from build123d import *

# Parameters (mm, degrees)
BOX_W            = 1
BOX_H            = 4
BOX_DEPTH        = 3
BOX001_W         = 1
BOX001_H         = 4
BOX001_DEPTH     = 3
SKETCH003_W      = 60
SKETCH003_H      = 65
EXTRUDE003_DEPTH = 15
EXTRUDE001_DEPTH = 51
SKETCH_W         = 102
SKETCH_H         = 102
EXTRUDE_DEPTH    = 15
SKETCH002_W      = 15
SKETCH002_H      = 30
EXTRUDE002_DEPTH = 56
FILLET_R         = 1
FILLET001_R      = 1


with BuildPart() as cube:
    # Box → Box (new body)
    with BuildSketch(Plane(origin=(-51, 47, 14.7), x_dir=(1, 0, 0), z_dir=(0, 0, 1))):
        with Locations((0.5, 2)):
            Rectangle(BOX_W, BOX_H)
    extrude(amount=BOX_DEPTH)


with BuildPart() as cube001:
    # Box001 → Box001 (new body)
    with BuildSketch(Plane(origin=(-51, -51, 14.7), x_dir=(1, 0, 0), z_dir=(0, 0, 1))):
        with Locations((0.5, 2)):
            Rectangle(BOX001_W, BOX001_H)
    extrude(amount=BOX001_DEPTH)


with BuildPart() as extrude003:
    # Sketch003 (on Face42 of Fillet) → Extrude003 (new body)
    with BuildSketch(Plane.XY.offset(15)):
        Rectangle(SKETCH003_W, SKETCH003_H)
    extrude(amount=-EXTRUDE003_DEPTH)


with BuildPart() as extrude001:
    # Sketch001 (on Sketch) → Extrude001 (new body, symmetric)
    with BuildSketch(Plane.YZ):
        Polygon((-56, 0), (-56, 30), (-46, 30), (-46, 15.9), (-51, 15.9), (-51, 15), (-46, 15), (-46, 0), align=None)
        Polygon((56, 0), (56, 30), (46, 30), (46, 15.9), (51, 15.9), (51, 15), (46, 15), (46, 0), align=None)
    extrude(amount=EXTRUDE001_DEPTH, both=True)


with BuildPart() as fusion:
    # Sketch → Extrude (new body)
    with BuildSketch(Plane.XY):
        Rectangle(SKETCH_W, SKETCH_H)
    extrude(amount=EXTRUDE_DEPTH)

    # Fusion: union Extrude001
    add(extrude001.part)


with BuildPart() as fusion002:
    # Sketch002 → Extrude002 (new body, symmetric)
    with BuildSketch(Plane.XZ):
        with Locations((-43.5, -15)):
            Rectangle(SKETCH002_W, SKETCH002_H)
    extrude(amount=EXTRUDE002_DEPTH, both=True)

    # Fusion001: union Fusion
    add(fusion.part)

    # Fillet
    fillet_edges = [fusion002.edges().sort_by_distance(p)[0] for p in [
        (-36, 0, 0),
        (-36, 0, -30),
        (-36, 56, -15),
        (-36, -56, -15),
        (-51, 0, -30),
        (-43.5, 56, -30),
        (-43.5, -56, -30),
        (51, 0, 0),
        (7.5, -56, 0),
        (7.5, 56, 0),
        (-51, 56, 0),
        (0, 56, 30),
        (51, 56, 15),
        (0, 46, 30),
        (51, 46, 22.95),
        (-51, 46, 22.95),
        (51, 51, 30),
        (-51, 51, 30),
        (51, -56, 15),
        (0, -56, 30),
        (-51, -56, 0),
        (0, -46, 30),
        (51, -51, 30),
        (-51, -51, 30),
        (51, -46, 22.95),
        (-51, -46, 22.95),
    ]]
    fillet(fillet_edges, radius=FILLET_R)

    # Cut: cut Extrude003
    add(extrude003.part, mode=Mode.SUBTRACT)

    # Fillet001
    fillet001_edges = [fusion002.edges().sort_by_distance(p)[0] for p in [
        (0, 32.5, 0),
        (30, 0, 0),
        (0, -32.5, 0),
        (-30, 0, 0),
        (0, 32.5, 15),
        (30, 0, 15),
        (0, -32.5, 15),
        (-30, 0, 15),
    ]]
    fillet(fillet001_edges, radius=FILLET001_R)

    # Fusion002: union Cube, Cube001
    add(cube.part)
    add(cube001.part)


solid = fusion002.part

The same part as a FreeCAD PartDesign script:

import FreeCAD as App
import Part
import Sketcher


def edges_at(feature, points):
    """Names of the edges that pass closest to the given points."""
    edges = feature.Shape.Edges
    near = lambda p: min(range(len(edges)), key=lambda i: edges[i].distToShape(Part.Vertex(*p))[0])
    return sorted({f"Edge{near(p) + 1}" for p in points})

doc = App.newDocument("Part")
body = doc.addObject("PartDesign::Body", "Body")

sketch1 = body.newObject("Sketcher::SketchObject", "Sketch")
sketch1.AttachmentSupport = (doc.getObject("XY_Plane"), [""])
sketch1.MapMode = "FlatFace"
sketch1.AttachmentOffset = App.Placement(App.Vector(0, 0, 14.7), App.Rotation())
sketch1.addGeometry([
    Part.LineSegment(App.Vector(-51, 51, 0), App.Vector(-51, 47, 0)),
    Part.LineSegment(App.Vector(-51, 47, 0), App.Vector(-50, 47, 0)),
    Part.LineSegment(App.Vector(-50, 47, 0), App.Vector(-50, 51, 0)),
    Part.LineSegment(App.Vector(-50, 51, 0), App.Vector(-51, 51, 0)),
], False)
sketch1.addConstraint([
    Sketcher.Constraint("Coincident", 0, 2, 1, 1),
    Sketcher.Constraint("Coincident", 1, 2, 2, 1),
    Sketcher.Constraint("Coincident", 2, 2, 3, 1),
    Sketcher.Constraint("Coincident", 3, 2, 0, 1),
    Sketcher.Constraint("Vertical", 0),
    Sketcher.Constraint("Horizontal", 1),
    Sketcher.Constraint("Vertical", 2),
    Sketcher.Constraint("Horizontal", 3),
    Sketcher.Constraint("DistanceX", 1, 1, 1, 2, 1.0),
    Sketcher.Constraint("DistanceY", 0, 2, 0, 1, 4.0),
    Sketcher.Constraint("DistanceX", 0, 2, -1, 1, 51.0),
    Sketcher.Constraint("DistanceY", -1, 1, 0, 2, 47.0),
])
pad1 = body.newObject("PartDesign::Pad", "Pad")
pad1.Profile = sketch1
pad1.Length = 3
body2 = doc.addObject("PartDesign::Body", "Body001")

sketch2 = body2.newObject("Sketcher::SketchObject", "Sketch001")
sketch2.AttachmentSupport = (doc.getObject("XY_Plane001"), [""])
sketch2.MapMode = "FlatFace"
sketch2.AttachmentOffset = App.Placement(App.Vector(0, 0, 14.7), App.Rotation())
sketch2.addGeometry([
    Part.LineSegment(App.Vector(-51, -47, 0), App.Vector(-51, -51, 0)),
    Part.LineSegment(App.Vector(-51, -51, 0), App.Vector(-50, -51, 0)),
    Part.LineSegment(App.Vector(-50, -51, 0), App.Vector(-50, -47, 0)),
    Part.LineSegment(App.Vector(-50, -47, 0), App.Vector(-51, -47, 0)),
], False)
sketch2.addConstraint([
    Sketcher.Constraint("Coincident", 0, 2, 1, 1),
    Sketcher.Constraint("Coincident", 1, 2, 2, 1),
    Sketcher.Constraint("Coincident", 2, 2, 3, 1),
    Sketcher.Constraint("Coincident", 3, 2, 0, 1),
    Sketcher.Constraint("Vertical", 0),
    Sketcher.Constraint("Horizontal", 1),
    Sketcher.Constraint("Vertical", 2),
    Sketcher.Constraint("Horizontal", 3),
    Sketcher.Constraint("DistanceX", 1, 1, 1, 2, 1.0),
    Sketcher.Constraint("DistanceY", 0, 2, 0, 1, 4.0),
    Sketcher.Constraint("DistanceX", 0, 2, -1, 1, 51.0),
    Sketcher.Constraint("DistanceY", 0, 2, -1, 1, 51.0),
])
pad2 = body2.newObject("PartDesign::Pad", "Pad001")
pad2.Profile = sketch2
pad2.Length = 3
body3 = doc.addObject("PartDesign::Body", "Body002")

sketch3 = body3.newObject("Sketcher::SketchObject", "Sketch002")
sketch3.AttachmentSupport = (doc.getObject("XY_Plane002"), [""])
sketch3.MapMode = "FlatFace"
sketch3.AttachmentOffset = App.Placement(App.Vector(0, 0, 15), App.Rotation())
sketch3.addGeometry([
    Part.LineSegment(App.Vector(-30, 32, 0), App.Vector(-30, -32, 0)),
    Part.LineSegment(App.Vector(-30, -32, 0), App.Vector(30, -32, 0)),
    Part.LineSegment(App.Vector(30, -32, 0), App.Vector(30, 32, 0)),
    Part.LineSegment(App.Vector(30, 32, 0), App.Vector(-30, 32, 0)),
], False)
sketch3.addConstraint([
    Sketcher.Constraint("Coincident", 0, 2, 1, 1),
    Sketcher.Constraint("Coincident", 1, 2, 2, 1),
    Sketcher.Constraint("Coincident", 2, 2, 3, 1),
    Sketcher.Constraint("Coincident", 3, 2, 0, 1),
    Sketcher.Constraint("Vertical", 0),
    Sketcher.Constraint("Horizontal", 1),
    Sketcher.Constraint("Vertical", 2),
    Sketcher.Constraint("Horizontal", 3),
    Sketcher.Constraint("Symmetric", 0, 2, 2, 2, -1, 1),
    Sketcher.Constraint("DistanceX", 1, 1, 1, 2, 60.0),
    Sketcher.Constraint("DistanceY", 0, 2, 0, 1, 65.0),
])
pad3 = body3.newObject("PartDesign::Pad", "Pad002")
pad3.Profile = sketch3
pad3.Length = 15
pad3.Reversed = True
body4 = doc.addObject("PartDesign::Body", "Body003")
body4.AllowCompound = True

sketch4 = body4.newObject("Sketcher::SketchObject", "Sketch003")
sketch4.AttachmentSupport = (doc.getObject("YZ_Plane003"), [""])
sketch4.MapMode = "FlatFace"
sketch4.addGeometry([
    Part.LineSegment(App.Vector(-56, 30, 0), App.Vector(-56, 0, 0)),
    Part.LineSegment(App.Vector(-56, 0, 0), App.Vector(-46, 0, 0)),
    Part.LineSegment(App.Vector(-46, 0, 0), App.Vector(-46, 15, 0)),
    Part.LineSegment(App.Vector(-46, 15, 0), App.Vector(-51, 15, 0)),
    Part.LineSegment(App.Vector(-51, 15, 0), App.Vector(-51, 15.9, 0)),
    Part.LineSegment(App.Vector(-51, 15.9, 0), App.Vector(-46, 15.9, 0)),
    Part.LineSegment(App.Vector(-46, 15.9, 0), App.Vector(-46, 30, 0)),
    Part.LineSegment(App.Vector(-46, 30, 0), App.Vector(-56, 30, 0)),
    Part.LineSegment(App.Vector(56, 0, 0), App.Vector(56, 30, 0)),
    Part.LineSegment(App.Vector(56, 30, 0), App.Vector(46, 30, 0)),
    Part.LineSegment(App.Vector(46, 30, 0), App.Vector(46, 15.9, 0)),
    Part.LineSegment(App.Vector(46, 15.9, 0), App.Vector(51, 15.9, 0)),
    Part.LineSegment(App.Vector(51, 15.9, 0), App.Vector(51, 15, 0)),
    Part.LineSegment(App.Vector(51, 15, 0), App.Vector(46, 15, 0)),
    Part.LineSegment(App.Vector(46, 15, 0), App.Vector(46, 0, 0)),
    Part.LineSegment(App.Vector(46, 0, 0), App.Vector(56, 0, 0)),
], False)
sketch4.addConstraint([
    Sketcher.Constraint("Coincident", 0, 2, 1, 1),
    Sketcher.Constraint("Coincident", 1, 2, 2, 1),
    Sketcher.Constraint("Coincident", 2, 2, 3, 1),
    Sketcher.Constraint("Coincident", 3, 2, 4, 1),
    Sketcher.Constraint("Coincident", 4, 2, 5, 1),
    Sketcher.Constraint("Coincident", 5, 2, 6, 1),
    Sketcher.Constraint("Coincident", 6, 2, 7, 1),
    Sketcher.Constraint("Coincident", 7, 2, 0, 1),
    Sketcher.Constraint("Coincident", 8, 2, 9, 1),
    Sketcher.Constraint("Coincident", 9, 2, 10, 1),
    Sketcher.Constraint("Coincident", 10, 2, 11, 1),
    Sketcher.Constraint("Coincident", 11, 2, 12, 1),
    Sketcher.Constraint("Coincident", 12, 2, 13, 1),
    Sketcher.Constraint("Coincident", 13, 2, 14, 1),
    Sketcher.Constraint("Coincident", 14, 2, 15, 1),
    Sketcher.Constraint("Coincident", 15, 2, 8, 1),
    Sketcher.Constraint("Vertical", 0),
    Sketcher.Constraint("Horizontal", 1),
    Sketcher.Constraint("Vertical", 2),
    Sketcher.Constraint("Horizontal", 3),
    Sketcher.Constraint("Vertical", 4),
    Sketcher.Constraint("Horizontal", 5),
    Sketcher.Constraint("Vertical", 6),
    Sketcher.Constraint("Horizontal", 7),
    Sketcher.Constraint("Vertical", 8),
    Sketcher.Constraint("Horizontal", 9),
    Sketcher.Constraint("Vertical", 10),
    Sketcher.Constraint("Horizontal", 11),
    Sketcher.Constraint("Vertical", 12),
    Sketcher.Constraint("Horizontal", 13),
    Sketcher.Constraint("Vertical", 14),
    Sketcher.Constraint("Horizontal", 15),
    Sketcher.Constraint("Symmetric", 1, 2, 14, 2, -1, 1),
    Sketcher.Constraint("Symmetric", 7, 2, 8, 2, -2),
    Sketcher.Constraint("Symmetric", 5, 2, 10, 2, -2),
    Sketcher.Constraint("Symmetric", 3, 2, 12, 2, -2),
    Sketcher.Constraint("PointOnObject", 0, 2, -1),
    Sketcher.Constraint("Vertical", 2, 2, 5, 2),
    Sketcher.Constraint("DistanceX", 1, 1, 1, 2, 10.0),
    Sketcher.Constraint("DistanceX", 3, 2, 3, 1, 5.0),
    Sketcher.Constraint("DistanceY", 0, 2, 0, 1, 30.0),
    Sketcher.Constraint("DistanceY", 2, 1, 2, 2, 15.0),
    Sketcher.Constraint("DistanceY", 4, 1, 4, 2, 0.9),
    Sketcher.Constraint("DistanceX", 0, 2, -1, 1, 56.0),
])
pad4 = body4.newObject("PartDesign::Pad", "Pad003")
pad4.Profile = sketch4
pad4.Length = 102
pad4.Midplane = True
body5 = doc.addObject("PartDesign::Body", "Body004")

sketch5 = body5.newObject("Sketcher::SketchObject", "Sketch004")
sketch5.AttachmentSupport = (doc.getObject("XY_Plane004"), [""])
sketch5.MapMode = "FlatFace"
sketch5.addGeometry([
    Part.LineSegment(App.Vector(-51, 51, 0), App.Vector(-51, -51, 0)),
    Part.LineSegment(App.Vector(-51, -51, 0), App.Vector(51, -51, 0)),
    Part.LineSegment(App.Vector(51, -51, 0), App.Vector(51, 51, 0)),
    Part.LineSegment(App.Vector(51, 51, 0), App.Vector(-51, 51, 0)),
], False)
sketch5.addConstraint([
    Sketcher.Constraint("Coincident", 0, 2, 1, 1),
    Sketcher.Constraint("Coincident", 1, 2, 2, 1),
    Sketcher.Constraint("Coincident", 2, 2, 3, 1),
    Sketcher.Constraint("Coincident", 3, 2, 0, 1),
    Sketcher.Constraint("Vertical", 0),
    Sketcher.Constraint("Horizontal", 1),
    Sketcher.Constraint("Vertical", 2),
    Sketcher.Constraint("Horizontal", 3),
    Sketcher.Constraint("Symmetric", 0, 2, 2, 2, -1, 1),
    Sketcher.Constraint("Equal", 3, 0),
    Sketcher.Constraint("DistanceX", 1, 1, 1, 2, 102.0),
])
pad5 = body5.newObject("PartDesign::Pad", "Pad004")
pad5.Profile = sketch5
pad5.Length = 15
doc.recompute()

boolean = body5.newObject("PartDesign::Boolean", "Boolean")
boolean.Type = "Fuse"
boolean.addObjects([body4])
body6 = doc.addObject("PartDesign::Body", "Body005")

sketch6 = body6.newObject("Sketcher::SketchObject", "Sketch005")
sketch6.AttachmentSupport = (doc.getObject("XZ_Plane005"), [""])
sketch6.MapMode = "FlatFace"
sketch6.addGeometry([
    Part.LineSegment(App.Vector(-51, 0, 0), App.Vector(-51, -30, 0)),
    Part.LineSegment(App.Vector(-51, -30, 0), App.Vector(-36, -30, 0)),
    Part.LineSegment(App.Vector(-36, -30, 0), App.Vector(-36, 0, 0)),
    Part.LineSegment(App.Vector(-36, 0, 0), App.Vector(-51, 0, 0)),
], False)
sketch6.addConstraint([
    Sketcher.Constraint("Coincident", 0, 2, 1, 1),
    Sketcher.Constraint("Coincident", 1, 2, 2, 1),
    Sketcher.Constraint("Coincident", 2, 2, 3, 1),
    Sketcher.Constraint("Coincident", 3, 2, 0, 1),
    Sketcher.Constraint("Vertical", 0),
    Sketcher.Constraint("Horizontal", 1),
    Sketcher.Constraint("Vertical", 2),
    Sketcher.Constraint("Horizontal", 3),
    Sketcher.Constraint("PointOnObject", 2, 2, -1),
    Sketcher.Constraint("DistanceX", 1, 1, 1, 2, 15.0),
    Sketcher.Constraint("DistanceY", 0, 2, 0, 1, 30.0),
    Sketcher.Constraint("DistanceX", 0, 2, -1, 1, 51.0),
])
pad6 = body6.newObject("PartDesign::Pad", "Pad005")
pad6.Profile = sketch6
pad6.Length = 112
pad6.Midplane = True
doc.recompute()

boolean2 = body6.newObject("PartDesign::Boolean", "Boolean001")
boolean2.Type = "Fuse"
boolean2.addObjects([body5])
doc.recompute()

fillet = body6.newObject("PartDesign::Fillet", "Fillet")
fillet.Base = (boolean2, edges_at(boolean2, [
    (-36, 0, 0),
    (-36, 0, -30),
    (-36, 56, -15),
    (-36, -56, -15),
    (-51, 0, -30),
    (-43.5, 56, -30),
    (-43.5, -56, -30),
    (51, 0, 0),
    (7.5, -56, 0),
    (7.5, 56, 0),
    (-51, 56, 0),
    (0, 56, 30),
    (51, 56, 15),
    (0, 46, 30),
    (51, 46, 22.95),
    (-51, 46, 22.95),
    (51, 51, 30),
    (-51, 51, 30),
    (51, -56, 15),
    (0, -56, 30),
    (-51, -56, 0),
    (0, -46, 30),
    (51, -51, 30),
    (-51, -51, 30),
    (51, -46, 22.95),
    (-51, -46, 22.95),
]))
fillet.Radius = 1
doc.recompute()

boolean3 = body6.newObject("PartDesign::Boolean", "Boolean002")
boolean3.Type = "Cut"
boolean3.addObjects([body3])
doc.recompute()

fillet2 = body6.newObject("PartDesign::Fillet", "Fillet001")
fillet2.Base = (boolean3, edges_at(boolean3, [
    (0, 32.5, 0),
    (30, 0, 0),
    (0, -32.5, 0),
    (-30, 0, 0),
    (0, 32.5, 15),
    (30, 0, 15),
    (0, -32.5, 15),
    (-30, 0, 15),
]))
fillet2.Radius = 1
doc.recompute()

boolean4 = body6.newObject("PartDesign::Boolean", "Boolean003")
boolean4.Type = "Fuse"
boolean4.addObjects([body])
doc.recompute()

boolean5 = body6.newObject("PartDesign::Boolean", "Boolean004")
boolean5.Type = "Fuse"
boolean5.addObjects([body2])

doc.recompute()
